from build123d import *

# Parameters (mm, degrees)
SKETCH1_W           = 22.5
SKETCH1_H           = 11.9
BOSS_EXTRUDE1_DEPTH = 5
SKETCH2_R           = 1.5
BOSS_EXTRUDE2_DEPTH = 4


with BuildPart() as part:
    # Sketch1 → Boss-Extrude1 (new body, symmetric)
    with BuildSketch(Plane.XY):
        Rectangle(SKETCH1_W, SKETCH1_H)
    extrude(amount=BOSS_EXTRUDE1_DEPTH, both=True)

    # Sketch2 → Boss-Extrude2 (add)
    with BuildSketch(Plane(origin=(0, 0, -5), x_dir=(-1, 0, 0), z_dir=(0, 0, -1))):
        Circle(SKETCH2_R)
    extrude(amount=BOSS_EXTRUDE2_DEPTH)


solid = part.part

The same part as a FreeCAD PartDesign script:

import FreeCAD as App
import Part
import Sketcher

V = App.Vector

doc = App.newDocument("Part")
body = doc.addObject("PartDesign::Body", "Body")

# Sketch on XY plane
sketch1 = body.newObject("Sketcher::SketchObject", "Sketch")
sketch1.AttachmentSupport = (doc.getObject("XY_Plane"), [""])
sketch1.MapMode = "FlatFace"
sketch1.addGeometry(Part.LineSegment(V(-11, 6, 0), V(-11, -6, 0)), False)
sketch1.addGeometry(Part.LineSegment(V(-11, -6, 0), V(11, -6, 0)), False)
sketch1.addGeometry(Part.LineSegment(V(11, -6, 0), V(11, 6, 0)), False)
sketch1.addGeometry(Part.LineSegment(V(11, 6, 0), V(-11, 6, 0)), False)
sketch1.addConstraint(Sketcher.Constraint("Coincident", 0, 2, 1, 1))
sketch1.addConstraint(Sketcher.Constraint("Coincident", 1, 2, 2, 1))
sketch1.addConstraint(Sketcher.Constraint("Coincident", 2, 2, 3, 1))
sketch1.addConstraint(Sketcher.Constraint("Coincident", 3, 2, 0, 1))
sketch1.addConstraint(Sketcher.Constraint("Vertical", 0))
sketch1.addConstraint(Sketcher.Constraint("Horizontal", 1))
sketch1.addConstraint(Sketcher.Constraint("Vertical", 2))
sketch1.addConstraint(Sketcher.Constraint("Horizontal", 3))
sketch1.addConstraint(Sketcher.Constraint("Symmetric", 0, 2, 2, 2, -1, 1))
sketch1.addConstraint(Sketcher.Constraint("DistanceX", 1, 1, 1, 2, 22.5))
sketch1.addConstraint(Sketcher.Constraint("DistanceY", 0, 2, 0, 1, 11.9))
pad1 = body.newObject("PartDesign::Pad", "Pad")
pad1.Profile = sketch1
pad1.Length = 10
pad1.Midplane = True

# Sketch on XY plane
sketch2 = body.newObject("Sketcher::SketchObject", "Sketch001")
sketch2.AttachmentSupport = (doc.getObject("XY_Plane"), [""])
sketch2.MapMode = "FlatFace"
sketch2.AttachmentOffset = App.Placement(V(0, 0, -5), App.Rotation())
sketch2.addGeometry(Part.Circle(V(0, 0, 0), V(0, 0, 1), 1.5), False)
sketch2.addConstraint(Sketcher.Constraint("Coincident", 0, 3, -1, 1))
sketch2.addConstraint(Sketcher.Constraint("Diameter", 0, 3.0))
pad2 = body.newObject("PartDesign::Pad", "Pad001")
pad2.Profile = sketch2
pad2.Length = 4
pad2.Reversed = True

doc.recompute()
